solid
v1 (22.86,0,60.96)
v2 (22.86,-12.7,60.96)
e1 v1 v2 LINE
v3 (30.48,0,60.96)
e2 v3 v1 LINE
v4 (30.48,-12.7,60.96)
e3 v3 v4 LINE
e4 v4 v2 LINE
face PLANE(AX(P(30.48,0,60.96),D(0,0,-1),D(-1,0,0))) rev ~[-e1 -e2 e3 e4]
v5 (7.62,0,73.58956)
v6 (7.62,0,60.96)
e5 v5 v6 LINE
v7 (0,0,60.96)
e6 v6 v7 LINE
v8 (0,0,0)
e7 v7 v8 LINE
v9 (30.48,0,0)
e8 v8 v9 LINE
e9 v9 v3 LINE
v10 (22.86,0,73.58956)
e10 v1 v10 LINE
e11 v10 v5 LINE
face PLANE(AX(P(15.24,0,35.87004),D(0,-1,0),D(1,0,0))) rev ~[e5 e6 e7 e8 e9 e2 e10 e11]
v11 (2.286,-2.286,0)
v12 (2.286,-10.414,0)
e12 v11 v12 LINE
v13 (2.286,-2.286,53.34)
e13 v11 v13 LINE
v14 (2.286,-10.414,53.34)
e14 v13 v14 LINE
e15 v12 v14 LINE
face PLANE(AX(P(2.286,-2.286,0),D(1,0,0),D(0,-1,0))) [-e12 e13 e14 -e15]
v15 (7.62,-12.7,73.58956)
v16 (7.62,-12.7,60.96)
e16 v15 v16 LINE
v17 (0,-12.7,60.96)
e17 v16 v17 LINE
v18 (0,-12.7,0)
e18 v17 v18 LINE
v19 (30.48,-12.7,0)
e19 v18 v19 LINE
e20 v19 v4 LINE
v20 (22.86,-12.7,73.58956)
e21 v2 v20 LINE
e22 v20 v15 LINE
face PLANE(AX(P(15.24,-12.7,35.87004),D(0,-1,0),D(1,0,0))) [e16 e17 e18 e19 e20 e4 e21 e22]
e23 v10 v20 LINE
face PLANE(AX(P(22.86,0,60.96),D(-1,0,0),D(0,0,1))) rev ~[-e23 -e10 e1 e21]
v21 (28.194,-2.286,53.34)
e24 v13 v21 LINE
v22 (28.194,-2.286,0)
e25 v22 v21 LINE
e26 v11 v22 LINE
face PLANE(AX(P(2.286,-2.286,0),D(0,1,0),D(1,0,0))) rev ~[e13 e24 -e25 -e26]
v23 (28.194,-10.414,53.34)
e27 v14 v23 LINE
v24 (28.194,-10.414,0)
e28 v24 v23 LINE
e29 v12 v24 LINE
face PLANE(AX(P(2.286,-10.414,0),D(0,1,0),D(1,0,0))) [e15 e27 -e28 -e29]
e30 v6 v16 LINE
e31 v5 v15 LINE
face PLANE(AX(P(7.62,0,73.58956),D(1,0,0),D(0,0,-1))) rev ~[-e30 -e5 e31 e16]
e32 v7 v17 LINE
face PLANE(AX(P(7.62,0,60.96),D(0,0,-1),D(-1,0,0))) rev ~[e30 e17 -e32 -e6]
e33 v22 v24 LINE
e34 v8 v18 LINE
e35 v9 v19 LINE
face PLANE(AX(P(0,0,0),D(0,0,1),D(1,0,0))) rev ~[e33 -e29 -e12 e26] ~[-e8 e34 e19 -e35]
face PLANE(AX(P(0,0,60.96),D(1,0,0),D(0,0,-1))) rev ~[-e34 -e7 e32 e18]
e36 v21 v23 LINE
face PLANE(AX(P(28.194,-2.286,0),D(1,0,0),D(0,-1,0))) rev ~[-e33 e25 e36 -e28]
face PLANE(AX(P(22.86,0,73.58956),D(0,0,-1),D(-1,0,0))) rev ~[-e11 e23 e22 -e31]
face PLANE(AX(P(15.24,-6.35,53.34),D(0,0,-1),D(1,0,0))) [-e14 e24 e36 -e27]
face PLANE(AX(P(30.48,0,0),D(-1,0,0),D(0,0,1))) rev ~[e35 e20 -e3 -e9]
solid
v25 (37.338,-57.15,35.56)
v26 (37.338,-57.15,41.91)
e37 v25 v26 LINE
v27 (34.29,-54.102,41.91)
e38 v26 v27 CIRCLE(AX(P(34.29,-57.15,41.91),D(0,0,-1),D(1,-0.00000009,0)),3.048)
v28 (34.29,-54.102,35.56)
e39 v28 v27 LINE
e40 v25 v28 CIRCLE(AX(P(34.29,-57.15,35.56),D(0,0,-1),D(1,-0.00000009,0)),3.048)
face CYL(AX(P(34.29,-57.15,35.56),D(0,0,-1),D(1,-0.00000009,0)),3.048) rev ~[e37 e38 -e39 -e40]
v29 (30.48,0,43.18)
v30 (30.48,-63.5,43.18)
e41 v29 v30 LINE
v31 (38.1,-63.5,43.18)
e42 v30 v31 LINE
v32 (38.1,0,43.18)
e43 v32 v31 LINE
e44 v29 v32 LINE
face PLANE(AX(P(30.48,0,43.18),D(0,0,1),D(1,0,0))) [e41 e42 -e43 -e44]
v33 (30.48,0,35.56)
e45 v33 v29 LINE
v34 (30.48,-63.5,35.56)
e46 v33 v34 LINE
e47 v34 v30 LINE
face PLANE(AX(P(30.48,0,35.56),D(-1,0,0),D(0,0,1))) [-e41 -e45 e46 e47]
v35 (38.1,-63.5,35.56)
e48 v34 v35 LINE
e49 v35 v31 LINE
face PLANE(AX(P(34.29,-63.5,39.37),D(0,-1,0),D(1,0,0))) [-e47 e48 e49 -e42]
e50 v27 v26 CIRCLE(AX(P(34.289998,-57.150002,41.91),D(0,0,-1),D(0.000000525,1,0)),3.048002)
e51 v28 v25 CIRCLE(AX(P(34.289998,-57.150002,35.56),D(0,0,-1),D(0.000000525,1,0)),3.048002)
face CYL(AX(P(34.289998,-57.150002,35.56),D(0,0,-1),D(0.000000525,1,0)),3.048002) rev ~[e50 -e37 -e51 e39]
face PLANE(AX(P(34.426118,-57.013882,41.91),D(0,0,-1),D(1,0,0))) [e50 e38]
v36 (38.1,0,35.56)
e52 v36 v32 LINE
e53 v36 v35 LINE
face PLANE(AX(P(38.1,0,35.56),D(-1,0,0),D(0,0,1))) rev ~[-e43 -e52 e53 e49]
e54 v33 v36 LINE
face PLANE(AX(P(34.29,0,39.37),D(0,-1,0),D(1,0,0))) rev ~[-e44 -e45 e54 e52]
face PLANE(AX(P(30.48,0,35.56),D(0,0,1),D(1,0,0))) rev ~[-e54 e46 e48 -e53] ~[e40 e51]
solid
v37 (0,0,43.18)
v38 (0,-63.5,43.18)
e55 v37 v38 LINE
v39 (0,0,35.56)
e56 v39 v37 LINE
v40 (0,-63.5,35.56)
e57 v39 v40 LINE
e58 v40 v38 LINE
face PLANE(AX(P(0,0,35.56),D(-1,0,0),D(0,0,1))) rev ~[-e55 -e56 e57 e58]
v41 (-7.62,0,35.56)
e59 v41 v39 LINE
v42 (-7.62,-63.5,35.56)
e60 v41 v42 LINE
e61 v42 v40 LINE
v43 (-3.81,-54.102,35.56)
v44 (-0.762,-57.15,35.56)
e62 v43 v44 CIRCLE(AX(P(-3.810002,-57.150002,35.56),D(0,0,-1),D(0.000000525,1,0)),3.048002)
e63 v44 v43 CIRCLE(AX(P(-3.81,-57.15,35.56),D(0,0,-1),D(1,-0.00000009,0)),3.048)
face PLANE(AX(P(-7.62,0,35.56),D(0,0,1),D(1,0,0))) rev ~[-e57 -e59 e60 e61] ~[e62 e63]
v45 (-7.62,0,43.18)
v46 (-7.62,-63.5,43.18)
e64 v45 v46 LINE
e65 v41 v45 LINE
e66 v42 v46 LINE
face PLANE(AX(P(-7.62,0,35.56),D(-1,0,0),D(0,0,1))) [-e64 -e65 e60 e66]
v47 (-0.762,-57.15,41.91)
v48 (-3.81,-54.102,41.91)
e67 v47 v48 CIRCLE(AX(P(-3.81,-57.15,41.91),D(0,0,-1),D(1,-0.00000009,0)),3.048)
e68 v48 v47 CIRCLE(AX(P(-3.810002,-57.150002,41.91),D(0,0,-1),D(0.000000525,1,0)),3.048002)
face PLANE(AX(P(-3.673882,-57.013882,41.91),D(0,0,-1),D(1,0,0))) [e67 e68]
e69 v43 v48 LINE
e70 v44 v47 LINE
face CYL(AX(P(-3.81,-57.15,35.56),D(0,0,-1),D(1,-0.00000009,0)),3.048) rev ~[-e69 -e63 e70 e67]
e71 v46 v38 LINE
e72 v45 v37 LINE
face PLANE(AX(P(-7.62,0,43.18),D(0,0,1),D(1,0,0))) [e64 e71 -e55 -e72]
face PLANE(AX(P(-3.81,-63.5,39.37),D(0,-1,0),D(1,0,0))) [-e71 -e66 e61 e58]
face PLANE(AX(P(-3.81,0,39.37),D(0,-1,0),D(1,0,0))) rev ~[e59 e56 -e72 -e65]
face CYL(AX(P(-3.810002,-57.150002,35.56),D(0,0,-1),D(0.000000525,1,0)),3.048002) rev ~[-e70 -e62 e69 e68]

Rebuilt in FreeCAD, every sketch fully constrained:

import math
import FreeCAD as App
import Part
import Sketcher

V = App.Vector
Q = App.Units.Quantity


def add_polygon(sketch, points):
    """Adds a closed chain of lines whose ends are joined by coincident constraints."""
    first, n = sketch.GeometryCount, len(points)
    for a, b in zip(points, points[1:] + points[:1]):
        sketch.addGeometry(Part.LineSegment(App.Vector(*a, 0), App.Vector(*b, 0)), False)
    for i in range(n):
        sketch.addConstraint(Sketcher.Constraint("Coincident", first + i, 2, first + (i + 1) % n, 1))

doc = App.newDocument("Part")
body = doc.addObject("PartDesign::Body", "Body")

sketch1 = doc.addObject("Sketcher::SketchObject", "Sketch")
body.addObject(sketch1)
sketch1.AttachmentSupport = (doc.XZ_Plane, [""])
sketch1.MapMode = "FlatFace"
add_polygon(sketch1, [(0, 61), (0, 0), (30, 0), (30, 61), (23, 61), (23, 74), (8, 74), (8, 61)])
sketch1.addConstraint(Sketcher.Constraint("Vertical", 0))
sketch1.addConstraint(Sketcher.Constraint("Horizontal", 1))
sketch1.addConstraint(Sketcher.Constraint("Vertical", 2))
sketch1.addConstraint(Sketcher.Constraint("Horizontal", 3))
sketch1.addConstraint(Sketcher.Constraint("Vertical", 4))
sketch1.addConstraint(Sketcher.Constraint("Horizontal", 5))
sketch1.addConstraint(Sketcher.Constraint("Vertical", 6))
sketch1.addConstraint(Sketcher.Constraint("Horizontal", 7))
sketch1.addConstraint(Sketcher.Constraint("Coincident", 0, 2, -1, 1))
sketch1.addConstraint(Sketcher.Constraint("Horizontal", 3, 2, 6, 2))
sketch1.addConstraint(Sketcher.Constraint("Equal", 3, 7))
sketch1.addConstraint(Sketcher.Constraint("DistanceX", 1, 1, 1, 2, Q("1.2 in")))
sketch1.addConstraint(Sketcher.Constraint("DistanceX", 3, 2, 3, 1, Q("0.3 in")))
sketch1.addConstraint(Sketcher.Constraint("DistanceY", 0, 2, 0, 1, Q("2.4 in")))
sketch1.addConstraint(Sketcher.Constraint("DistanceY", 4, 1, 4, 2, 12.62956))
pad1 = doc.addObject("PartDesign::Pad", "Pad")
body.addObject(pad1)
pad1.Profile = sketch1
pad1.Length = Q("0.5 in")

sketch2 = doc.addObject("Sketcher::SketchObject", "Sketch001")
body.addObject(sketch2)
sketch2.AttachmentSupport = (doc.XY_Plane, [""])
sketch2.MapMode = "FlatFace"
add_polygon(sketch2, [(2, -10), (2, -2), (28, -2), (28, -10)])
sketch2.addConstraint(Sketcher.Constraint("Vertical", 0))
sketch2.addConstraint(Sketcher.Constraint("Horizontal", 1))
sketch2.addConstraint(Sketcher.Constraint("Vertical", 2))
sketch2.addConstraint(Sketcher.Constraint("Horizontal", 3))
sketch2.addConstraint(Sketcher.Constraint("DistanceX", 1, 1, 1, 2, Q("1.02 in")))
sketch2.addConstraint(Sketcher.Constraint("DistanceY", 0, 1, 0, 2, Q("0.32 in")))
sketch2.addConstraint(Sketcher.Constraint("DistanceX", -1, 1, 0, 2, Q("0.09 in")))
sketch2.addConstraint(Sketcher.Constraint("DistanceY", 0, 2, -1, 1, Q("0.09 in")))
pocket1 = doc.addObject("PartDesign::Pocket", "Pocket")
body.addObject(pocket1)
pocket1.Profile = sketch2
pocket1.Length = Q("2.1 in")
pocket1.Reversed = True
body2 = doc.addObject("PartDesign::Body", "Body001")
body2.AllowCompound = True

sketch3 = doc.addObject("Sketcher::SketchObject", "Sketch002")
body2.addObject(sketch3)
sketch3.AttachmentSupport = (doc.getObject("XZ_Plane001"), [""])
sketch3.MapMode = "FlatFace"
add_polygon(sketch3, [(-8, 43), (-8, 36), (0, 36), (0, 43)])
add_polygon(sketch3, [(30, 43), (30, 36), (38, 36), (38, 43)])
sketch3.addConstraint(Sketcher.Constraint("Vertical", 0))
sketch3.addConstraint(Sketcher.Constraint("Horizontal", 1))
sketch3.addConstraint(Sketcher.Constraint("Vertical", 2))
sketch3.addConstraint(Sketcher.Constraint("Horizontal", 3))
sketch3.addConstraint(Sketcher.Constraint("Vertical", 4))
sketch3.addConstraint(Sketcher.Constraint("Horizontal", 5))
sketch3.addConstraint(Sketcher.Constraint("Vertical", 6))
sketch3.addConstraint(Sketcher.Constraint("Horizontal", 7))
sketch3.addConstraint(Sketcher.Constraint("PointOnObject", 1, 2, -2))
sketch3.addConstraint(Sketcher.Constraint("Horizontal", 1, 2, 4, 2))
sketch3.addConstraint(Sketcher.Constraint("Horizontal", 3, 2, 6, 2))
sketch3.addConstraint(Sketcher.Constraint("Equal", 3, 5))
sketch3.addConstraint(Sketcher.Constraint("Equal", 7, 0))
sketch3.addConstraint(Sketcher.Constraint("DistanceX", 1, 1, 1, 2, Q("0.3 in")))
sketch3.addConstraint(Sketcher.Constraint("DistanceY", -1, 1, 0, 2, Q("1.4 in")))
sketch3.addConstraint(Sketcher.Constraint("DistanceX", -1, 1, 4, 2, Q("1.2 in")))
pad2 = doc.addObject("PartDesign::Pad", "Pad001")
body2.addObject(pad2)
pad2.Profile = sketch3
pad2.Length = Q("2.5 in")

sketch4 = doc.addObject("Sketcher::SketchObject", "Sketch003")
body2.addObject(sketch4)
sketch4.AttachmentSupport = (doc.getObject("XY_Plane001"), [""])
sketch4.MapMode = "FlatFace"
sketch4.AttachmentOffset = App.Placement(V(0, 0, 1.4 * 25.4), App.Rotation())
sketch4.addGeometry(Part.ArcOfCircle(Part.Circle(V(-3.8, -57.1, 0), V(0, 0, 1), 3), math.radians(90), math.radians(360)), False)
sketch4.addGeometry(Part.ArcOfCircle(Part.Circle(V(-3.8, -57.2, 0), V(0, 0, 1), 3), math.radians(0), math.radians(90)), False)
sketch4.addConstraint(Sketcher.Constraint("Tangent", 0, 1, 1, 2))
sketch4.addConstraint(Sketcher.Constraint("Coincident", 1, 1, 0, 2))
sketch4.addConstraint(Sketcher.Constraint("Horizontal", 0, 3, 1, 1))
sketch4.addConstraint(Sketcher.Constraint("Vertical", 1, 3, 0, 1))
sketch4.addConstraint(Sketcher.Constraint("Radius", 0, Q("0.12 in")))
sketch4.addConstraint(Sketcher.Constraint("DistanceX", 0, 3, -1, 1, Q("0.15 in")))
sketch4.addConstraint(Sketcher.Constraint("DistanceY", 0, 3, -1, 1, Q("2.25 in")))
pocket2 = doc.addObject("PartDesign::Pocket", "Pocket001")
body2.addObject(pocket2)
pocket2.Profile = sketch4
pocket2.Length = Q("0.25 in")
pocket2.Reversed = True

sketch5 = doc.addObject("Sketcher::SketchObject", "Sketch004")
body2.addObject(sketch5)
sketch5.AttachmentSupport = (doc.getObject("XY_Plane001"), [""])
sketch5.MapMode = "FlatFace"
sketch5.AttachmentOffset = App.Placement(V(0, 0, 1.4 * 25.4), App.Rotation())
sketch5.addGeometry(Part.ArcOfCircle(Part.Circle(V(34.3, -57.1, 0), V(0, 0, 1), 3), math.radians(90), math.radians(360)), False)
sketch5.addGeometry(Part.ArcOfCircle(Part.Circle(V(34.3, -57.2, 0), V(0, 0, 1), 3), math.radians(0), math.radians(90)), False)
sketch5.addConstraint(Sketcher.Constraint("Tangent", 0, 1, 1, 2))
sketch5.addConstraint(Sketcher.Constraint("Coincident", 1, 1, 0, 2))
sketch5.addConstraint(Sketcher.Constraint("Horizontal", 0, 3, 1, 1))
sketch5.addConstraint(Sketcher.Constraint("Vertical", 1, 3, 0, 1))
sketch5.addConstraint(Sketcher.Constraint("Radius", 0, Q("0.12 in")))
sketch5.addConstraint(Sketcher.Constraint("DistanceX", -1, 1, 0, 3, Q("1.35 in")))
sketch5.addConstraint(Sketcher.Constraint("DistanceY", 0, 3, -1, 1, Q("2.25 in")))
pocket3 = doc.addObject("PartDesign::Pocket", "Pocket002")
body2.addObject(pocket3)
pocket3.Profile = sketch5
pocket3.Length = Q("0.25 in")
pocket3.Reversed = True

doc.recompute()
